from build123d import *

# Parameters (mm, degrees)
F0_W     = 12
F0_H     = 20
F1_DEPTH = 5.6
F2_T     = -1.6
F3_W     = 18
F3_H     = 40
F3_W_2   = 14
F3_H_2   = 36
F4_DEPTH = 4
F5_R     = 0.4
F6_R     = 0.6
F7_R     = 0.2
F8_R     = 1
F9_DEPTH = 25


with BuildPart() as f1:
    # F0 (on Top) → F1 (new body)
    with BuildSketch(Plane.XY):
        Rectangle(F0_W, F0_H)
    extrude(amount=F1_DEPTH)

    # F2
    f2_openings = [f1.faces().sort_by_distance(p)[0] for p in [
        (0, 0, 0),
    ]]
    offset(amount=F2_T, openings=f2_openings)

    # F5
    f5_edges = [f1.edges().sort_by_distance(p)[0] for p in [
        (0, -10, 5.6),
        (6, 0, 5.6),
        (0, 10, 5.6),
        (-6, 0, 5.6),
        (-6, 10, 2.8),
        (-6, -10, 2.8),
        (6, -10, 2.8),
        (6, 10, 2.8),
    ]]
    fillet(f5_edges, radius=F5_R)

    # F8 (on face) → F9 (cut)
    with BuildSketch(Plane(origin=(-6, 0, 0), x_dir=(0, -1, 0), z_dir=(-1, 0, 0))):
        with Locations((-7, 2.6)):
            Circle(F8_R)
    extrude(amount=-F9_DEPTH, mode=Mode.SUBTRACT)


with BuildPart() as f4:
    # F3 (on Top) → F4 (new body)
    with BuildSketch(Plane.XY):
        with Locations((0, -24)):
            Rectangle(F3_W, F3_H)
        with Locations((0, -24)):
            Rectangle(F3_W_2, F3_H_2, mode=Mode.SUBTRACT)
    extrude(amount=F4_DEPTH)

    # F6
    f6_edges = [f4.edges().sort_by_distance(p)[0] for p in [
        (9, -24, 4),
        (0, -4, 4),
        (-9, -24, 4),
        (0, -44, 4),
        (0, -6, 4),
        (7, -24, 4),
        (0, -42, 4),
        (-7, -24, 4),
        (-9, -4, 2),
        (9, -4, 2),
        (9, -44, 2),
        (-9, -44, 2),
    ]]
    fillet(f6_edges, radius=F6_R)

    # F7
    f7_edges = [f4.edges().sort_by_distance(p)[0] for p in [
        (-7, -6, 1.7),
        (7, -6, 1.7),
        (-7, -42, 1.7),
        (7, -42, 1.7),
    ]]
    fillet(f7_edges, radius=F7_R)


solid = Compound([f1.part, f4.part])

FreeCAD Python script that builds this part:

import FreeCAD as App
import Part
import Sketcher

V = App.Vector


def edges_at(feature, points):
    """Names of the edges that pass closest to the given points."""
    edges = feature.Shape.Edges
    near = lambda p: min(range(len(edges)), key=lambda i: edges[i].distToShape(Part.Vertex(*p))[0])
    return sorted({f"Edge{near(p) + 1}" for p in points})


def faces_at(feature, points):
    """Names of the faces that lie closest to the given points."""
    faces = feature.Shape.Faces
    near = lambda p: min(range(len(faces)), key=lambda i: faces[i].distToShape(Part.Vertex(*p))[0])
    return sorted({f"Face{near(p) + 1}" for p in points})


def add_polygon(sketch, points):
    """Adds a closed chain of lines whose ends are joined by coincident constraints."""
    first, n = sketch.GeometryCount, len(points)
    for a, b in zip(points, points[1:] + points[:1]):
        sketch.addGeometry(Part.LineSegment(App.Vector(*a, 0), App.Vector(*b, 0)), False)
    for i in range(n):
        sketch.addConstraint(Sketcher.Constraint("Coincident", first + i, 2, first + (i + 1) % n, 1))

doc = App.newDocument("Part")
params = doc.addObject("Spreadsheet::Sheet", "Params")
for row, (alias, value) in enumerate([
    ("sketch1_width", "12 mm"),
    ("sketch1_height", "20 mm"),
    ("pad1_length", "5.6 mm"),
    ("thickness_wall", "1.6 mm"),
    ("fillet_radius", "0.4 mm"),
    ("sketch2_diameter", "2 mm"),
    ("pocket1_length", "25 mm"),
    ("sketch3_width", "18 mm"),
    ("sketch3_width2", "14 mm"),
    ("sketch3_height", "40 mm"),
    ("sketch3_height2", "36 mm"),
    ("pad2_length", "4 mm"),
    ("fillet2_radius", "0.6 mm"),
    ("fillet3_radius", "0.2 mm"),
], start=1):
    params.set(f"A{row}", alias)
    params.set(f"B{row}", "=" + value)
    params.setAlias(f"B{row}", alias)

body = doc.addObject("PartDesign::Body", "Body")

sketch1 = body.newObject("Sketcher::SketchObject", "Sketch")
sketch1.AttachmentSupport = (doc.getObject("XY_Plane"), [""])
sketch1.MapMode = "FlatFace"
add_polygon(sketch1, [(-6, 10), (-6, -10), (6, -10), (6, 10)])
sketch1.addConstraint(Sketcher.Constraint("Vertical", 0))
sketch1.addConstraint(Sketcher.Constraint("Horizontal", 1))
sketch1.addConstraint(Sketcher.Constraint("Vertical", 2))
sketch1.addConstraint(Sketcher.Constraint("Horizontal", 3))
sketch1.addConstraint(Sketcher.Constraint("Symmetric", 0, 2, 2, 2, -1, 1))
sketch1.addConstraint(Sketcher.Constraint("DistanceX", 1, 1, 1, 2, 12.0))
sketch1.addConstraint(Sketcher.Constraint("DistanceY", 0, 2, 0, 1, 20.0))
sketch1.setExpression("Constraints[9]", "Params.sketch1_width")
sketch1.setExpression("Constraints[10]", "Params.sketch1_height")
pad1 = body.newObject("PartDesign::Pad", "Pad")
pad1.Profile = sketch1
pad1.setExpression("Length", "Params.pad1_length")
doc.recompute()

thickness = body.newObject("PartDesign::Thickness", "Thickness")
thickness.Base = (pad1, faces_at(pad1, [(0, 0, 0)]))
thickness.setExpression("Value", "Params.thickness_wall")
thickness.Reversed = True
thickness.Join = "Arc"
doc.recompute()

fillet = body.newObject("PartDesign::Fillet", "Fillet")
fillet.Base = (thickness, edges_at(thickness, [
    (0, -10, 5.6),
    (6, 0, 5.6),
    (0, 10, 5.6),
    (-6, 0, 5.6),
    (-6, 10, 2.8),
    (-6, -10, 2.8),
    (6, -10, 2.8),
    (6, 10, 2.8),
]))
fillet.setExpression("Radius", "Params.fillet_radius")

sketch2 = body.newObject("Sketcher::SketchObject", "Sketch001")
sketch2.AttachmentSupport = (doc.getObject("YZ_Plane"), [""])
sketch2.MapMode = "FlatFace"
sketch2.AttachmentOffset = App.Placement(V(0, 0, -6), App.Rotation())
sketch2.addGeometry(Part.Circle(V(7, 2.6, 0), V(0, 0, 1), 1), False)
sketch2.addConstraint(Sketcher.Constraint("Diameter", 0, 2.0))
sketch2.addConstraint(Sketcher.Constraint("DistanceX", -1, 1, 0, 3, 7.0))
sketch2.addConstraint(Sketcher.Constraint("DistanceY", -1, 1, 0, 3, 2.6))
sketch2.setExpression("Constraints[0]", "Params.sketch2_diameter")
pocket1 = body.newObject("PartDesign::Pocket", "Pocket")
pocket1.Profile = sketch2
pocket1.setExpression("Length", "Params.pocket1_length")
pocket1.Reversed = True
body2 = doc.addObject("PartDesign::Body", "Body001")

sketch3 = body2.newObject("Sketcher::SketchObject", "Sketch002")
sketch3.AttachmentSupport = (doc.getObject("XY_Plane001"), [""])
sketch3.MapMode = "FlatFace"
add_polygon(sketch3, [(-9, -4), (-9, -44), (9, -44), (9, -4)])
add_polygon(sketch3, [(7, -42), (-7, -42), (-7, -6), (7, -6)])
sketch3.addConstraint(Sketcher.Constraint("Vertical", 0))
sketch3.addConstraint(Sketcher.Constraint("Horizontal", 1))
sketch3.addConstraint(Sketcher.Constraint("Vertical", 2))
sketch3.addConstraint(Sketcher.Constraint("Horizontal", 3))
sketch3.addConstraint(Sketcher.Constraint("Horizontal", 4))
sketch3.addConstraint(Sketcher.Constraint("Vertical", 5))
sketch3.addConstraint(Sketcher.Constraint("Horizontal", 6))
sketch3.addConstraint(Sketcher.Constraint("Vertical", 7))
sketch3.addConstraint(Sketcher.Constraint("DistanceX", 1, 1, 1, 2, 18.0))
sketch3.addConstraint(Sketcher.Constraint("DistanceX", 4, 2, 4, 1, 14.0))
sketch3.addConstraint(Sketcher.Constraint("DistanceY", 0, 2, 0, 1, 40.0))
sketch3.addConstraint(Sketcher.Constraint("DistanceY", 5, 1, 5, 2, 36.0))
sketch3.addConstraint(Sketcher.Constraint("DistanceX", 0, 2, -1, 1, 9.0))
sketch3.addConstraint(Sketcher.Constraint("DistanceY", 0, 2, -1, 1, 44.0))
sketch3.addConstraint(Sketcher.Constraint("DistanceX", 4, 2, -1, 1, 7.0))
sketch3.addConstraint(Sketcher.Constraint("DistanceY", 4, 2, -1, 1, 42.0))
sketch3.setExpression("Constraints[16]", "Params.sketch3_width")
sketch3.setExpression("Constraints[17]", "Params.sketch3_width2")
sketch3.setExpression("Constraints[18]", "Params.sketch3_height")
sketch3.setExpression("Constraints[19]", "Params.sketch3_height2")
pad2 = body2.newObject("PartDesign::Pad", "Pad001")
pad2.Profile = sketch3
pad2.setExpression("Length", "Params.pad2_length")
doc.recompute()

fillet2 = body2.newObject("PartDesign::Fillet", "Fillet001")
fillet2.Base = (pad2, edges_at(pad2, [
    (9, -24, 4),
    (0, -4, 4),
    (-9, -24, 4),
    (0, -44, 4),
    (0, -6, 4),
    (7, -24, 4),
    (0, -42, 4),
    (-7, -24, 4),
    (-9, -4, 2),
    (9, -4, 2),
    (9, -44, 2),
    (-9, -44, 2),
]))
fillet2.setExpression("Radius", "Params.fillet2_radius")
doc.recompute()

fillet3 = body2.newObject("PartDesign::Fillet", "Fillet002")
fillet3.Base = (fillet2, edges_at(fillet2, [
    (-7, -6, 1.7),
    (7, -6, 1.7),
    (-7, -42, 1.7),
    (7, -42, 1.7),
]))
fillet3.setExpression("Radius", "Params.fillet3_radius")

doc.recompute()
